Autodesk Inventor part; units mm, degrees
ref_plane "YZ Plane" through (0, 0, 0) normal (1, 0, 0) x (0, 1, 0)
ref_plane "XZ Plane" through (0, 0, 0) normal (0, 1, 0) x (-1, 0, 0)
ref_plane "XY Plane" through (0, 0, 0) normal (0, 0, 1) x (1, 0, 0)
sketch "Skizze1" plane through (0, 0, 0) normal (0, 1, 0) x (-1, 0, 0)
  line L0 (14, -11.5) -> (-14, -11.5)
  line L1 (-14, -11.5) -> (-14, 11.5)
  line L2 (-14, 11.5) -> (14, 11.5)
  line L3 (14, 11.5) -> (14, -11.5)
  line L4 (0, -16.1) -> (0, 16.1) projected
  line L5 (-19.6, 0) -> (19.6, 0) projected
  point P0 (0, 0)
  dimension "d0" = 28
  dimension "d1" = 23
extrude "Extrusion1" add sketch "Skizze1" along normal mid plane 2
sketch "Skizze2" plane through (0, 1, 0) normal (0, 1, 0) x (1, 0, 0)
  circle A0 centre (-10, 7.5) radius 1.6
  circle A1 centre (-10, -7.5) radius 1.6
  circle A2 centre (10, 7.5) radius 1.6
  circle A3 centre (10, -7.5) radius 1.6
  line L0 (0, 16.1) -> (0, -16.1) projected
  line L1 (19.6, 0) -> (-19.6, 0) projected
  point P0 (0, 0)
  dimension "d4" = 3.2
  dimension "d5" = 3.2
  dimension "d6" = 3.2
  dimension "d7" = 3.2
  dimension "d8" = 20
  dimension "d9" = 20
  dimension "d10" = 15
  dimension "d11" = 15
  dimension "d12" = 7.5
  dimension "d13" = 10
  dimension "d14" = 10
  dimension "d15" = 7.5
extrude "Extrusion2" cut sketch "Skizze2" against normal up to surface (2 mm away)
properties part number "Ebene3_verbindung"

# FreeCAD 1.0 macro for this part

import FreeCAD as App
import Part
import Sketcher

V = App.Vector

doc = App.newDocument("Part")
params = doc.addObject("Spreadsheet::Sheet", "Params")
for row, (alias, value) in enumerate([
    ("sketch1_width", "28 mm"),
    ("sketch1_height", "23 mm"),
    ("pad1_length", "2 mm"),
    ("sketch2_diameter", "3.2 mm"),
    ("pocket1_length", "2 mm"),
], start=1):
    params.set(f"A{row}", alias)
    params.set(f"B{row}", "=" + value)
    params.setAlias(f"B{row}", alias)

body = doc.addObject("PartDesign::Body", "Body")

# Sketch on XZ plane
sketch1 = body.newObject("Sketcher::SketchObject", "Sketch")
sketch1.AttachmentSupport = (doc.getObject("XZ_Plane"), [""])
sketch1.MapMode = "FlatFace"
sketch1.addGeometry([
    Part.LineSegment(V(-14, -12, 0), V(-14, 12, 0)),
    Part.LineSegment(V(-14, 12, 0), V(14, 12, 0)),
    Part.LineSegment(V(14, 12, 0), V(14, -12, 0)),
    Part.LineSegment(V(14, -12, 0), V(-14, -12, 0)),
], False)
sketch1.addConstraint([
    Sketcher.Constraint("Coincident", 0, 2, 1, 1),
    Sketcher.Constraint("Coincident", 1, 2, 2, 1),
    Sketcher.Constraint("Coincident", 2, 2, 3, 1),
    Sketcher.Constraint("Coincident", 3, 2, 0, 1),
    Sketcher.Constraint("Vertical", 0),
    Sketcher.Constraint("Horizontal", 1),
    Sketcher.Constraint("Vertical", 2),
    Sketcher.Constraint("Horizontal", 3),
    Sketcher.Constraint("Symmetric", 0, 2, 2, 2, -1, 1),
    Sketcher.Constraint("DistanceX", 1, 1, 1, 2, 28.0),
    Sketcher.Constraint("DistanceY", 0, 1, 0, 2, 23.0),
])
sketch1.setExpression("Constraints[9]", "Params.sketch1_width")
sketch1.setExpression("Constraints[10]", "Params.sketch1_height")
pad1 = body.newObject("PartDesign::Pad", "Pad")
pad1.Profile = sketch1
pad1.setExpression("Length", "Params.pad1_length")
pad1.Midplane = True

# Sketch on XZ plane
sketch2 = body.newObject("Sketcher::SketchObject", "Sketch001")
sketch2.AttachmentSupport = (doc.getObject("XZ_Plane"), [""])
sketch2.MapMode = "FlatFace"
sketch2.AttachmentOffset = App.Placement(V(0, 0, -1), App.Rotation())
sketch2.addGeometry([
    Part.Circle(V(-10, -7.5, 0), V(0, 0, 1), 1.6),
    Part.Circle(V(-10, 7.5, 0), V(0, 0, 1), 1.6),
    Part.Circle(V(10, -7.5, 0), V(0, 0, 1), 1.6),
    Part.Circle(V(10, 7.5, 0), V(0, 0, 1), 1.6),
], False)
sketch2.addConstraint([
    Sketcher.Constraint("Equal", 0, 1),
    Sketcher.Constraint("Equal", 1, 2),
    Sketcher.Constraint("Equal", 2, 3),
    Sketcher.Constraint("Symmetric", 1, 3, 2, 3, -1, 1),
    Sketcher.Constraint("Symmetric", 0, 3, 3, 3, -1, 1),
    Sketcher.Constraint("Symmetric", 0, 3, 2, 3, -2),
    Sketcher.Constraint("Diameter", 0, 3.2),
    Sketcher.Constraint("DistanceX", 0, 3, -1, 1, 10.0),
    Sketcher.Constraint("DistanceY", 0, 3, 1, 3, 15.0),
])
sketch2.setExpression("Constraints[6]", "Params.sketch2_diameter")
pocket1 = body.newObject("PartDesign::Pocket", "Pocket")
pocket1.Profile = sketch2
pocket1.setExpression("Length", "Params.pocket1_length")
pocket1.Reversed = True

doc.recompute()
